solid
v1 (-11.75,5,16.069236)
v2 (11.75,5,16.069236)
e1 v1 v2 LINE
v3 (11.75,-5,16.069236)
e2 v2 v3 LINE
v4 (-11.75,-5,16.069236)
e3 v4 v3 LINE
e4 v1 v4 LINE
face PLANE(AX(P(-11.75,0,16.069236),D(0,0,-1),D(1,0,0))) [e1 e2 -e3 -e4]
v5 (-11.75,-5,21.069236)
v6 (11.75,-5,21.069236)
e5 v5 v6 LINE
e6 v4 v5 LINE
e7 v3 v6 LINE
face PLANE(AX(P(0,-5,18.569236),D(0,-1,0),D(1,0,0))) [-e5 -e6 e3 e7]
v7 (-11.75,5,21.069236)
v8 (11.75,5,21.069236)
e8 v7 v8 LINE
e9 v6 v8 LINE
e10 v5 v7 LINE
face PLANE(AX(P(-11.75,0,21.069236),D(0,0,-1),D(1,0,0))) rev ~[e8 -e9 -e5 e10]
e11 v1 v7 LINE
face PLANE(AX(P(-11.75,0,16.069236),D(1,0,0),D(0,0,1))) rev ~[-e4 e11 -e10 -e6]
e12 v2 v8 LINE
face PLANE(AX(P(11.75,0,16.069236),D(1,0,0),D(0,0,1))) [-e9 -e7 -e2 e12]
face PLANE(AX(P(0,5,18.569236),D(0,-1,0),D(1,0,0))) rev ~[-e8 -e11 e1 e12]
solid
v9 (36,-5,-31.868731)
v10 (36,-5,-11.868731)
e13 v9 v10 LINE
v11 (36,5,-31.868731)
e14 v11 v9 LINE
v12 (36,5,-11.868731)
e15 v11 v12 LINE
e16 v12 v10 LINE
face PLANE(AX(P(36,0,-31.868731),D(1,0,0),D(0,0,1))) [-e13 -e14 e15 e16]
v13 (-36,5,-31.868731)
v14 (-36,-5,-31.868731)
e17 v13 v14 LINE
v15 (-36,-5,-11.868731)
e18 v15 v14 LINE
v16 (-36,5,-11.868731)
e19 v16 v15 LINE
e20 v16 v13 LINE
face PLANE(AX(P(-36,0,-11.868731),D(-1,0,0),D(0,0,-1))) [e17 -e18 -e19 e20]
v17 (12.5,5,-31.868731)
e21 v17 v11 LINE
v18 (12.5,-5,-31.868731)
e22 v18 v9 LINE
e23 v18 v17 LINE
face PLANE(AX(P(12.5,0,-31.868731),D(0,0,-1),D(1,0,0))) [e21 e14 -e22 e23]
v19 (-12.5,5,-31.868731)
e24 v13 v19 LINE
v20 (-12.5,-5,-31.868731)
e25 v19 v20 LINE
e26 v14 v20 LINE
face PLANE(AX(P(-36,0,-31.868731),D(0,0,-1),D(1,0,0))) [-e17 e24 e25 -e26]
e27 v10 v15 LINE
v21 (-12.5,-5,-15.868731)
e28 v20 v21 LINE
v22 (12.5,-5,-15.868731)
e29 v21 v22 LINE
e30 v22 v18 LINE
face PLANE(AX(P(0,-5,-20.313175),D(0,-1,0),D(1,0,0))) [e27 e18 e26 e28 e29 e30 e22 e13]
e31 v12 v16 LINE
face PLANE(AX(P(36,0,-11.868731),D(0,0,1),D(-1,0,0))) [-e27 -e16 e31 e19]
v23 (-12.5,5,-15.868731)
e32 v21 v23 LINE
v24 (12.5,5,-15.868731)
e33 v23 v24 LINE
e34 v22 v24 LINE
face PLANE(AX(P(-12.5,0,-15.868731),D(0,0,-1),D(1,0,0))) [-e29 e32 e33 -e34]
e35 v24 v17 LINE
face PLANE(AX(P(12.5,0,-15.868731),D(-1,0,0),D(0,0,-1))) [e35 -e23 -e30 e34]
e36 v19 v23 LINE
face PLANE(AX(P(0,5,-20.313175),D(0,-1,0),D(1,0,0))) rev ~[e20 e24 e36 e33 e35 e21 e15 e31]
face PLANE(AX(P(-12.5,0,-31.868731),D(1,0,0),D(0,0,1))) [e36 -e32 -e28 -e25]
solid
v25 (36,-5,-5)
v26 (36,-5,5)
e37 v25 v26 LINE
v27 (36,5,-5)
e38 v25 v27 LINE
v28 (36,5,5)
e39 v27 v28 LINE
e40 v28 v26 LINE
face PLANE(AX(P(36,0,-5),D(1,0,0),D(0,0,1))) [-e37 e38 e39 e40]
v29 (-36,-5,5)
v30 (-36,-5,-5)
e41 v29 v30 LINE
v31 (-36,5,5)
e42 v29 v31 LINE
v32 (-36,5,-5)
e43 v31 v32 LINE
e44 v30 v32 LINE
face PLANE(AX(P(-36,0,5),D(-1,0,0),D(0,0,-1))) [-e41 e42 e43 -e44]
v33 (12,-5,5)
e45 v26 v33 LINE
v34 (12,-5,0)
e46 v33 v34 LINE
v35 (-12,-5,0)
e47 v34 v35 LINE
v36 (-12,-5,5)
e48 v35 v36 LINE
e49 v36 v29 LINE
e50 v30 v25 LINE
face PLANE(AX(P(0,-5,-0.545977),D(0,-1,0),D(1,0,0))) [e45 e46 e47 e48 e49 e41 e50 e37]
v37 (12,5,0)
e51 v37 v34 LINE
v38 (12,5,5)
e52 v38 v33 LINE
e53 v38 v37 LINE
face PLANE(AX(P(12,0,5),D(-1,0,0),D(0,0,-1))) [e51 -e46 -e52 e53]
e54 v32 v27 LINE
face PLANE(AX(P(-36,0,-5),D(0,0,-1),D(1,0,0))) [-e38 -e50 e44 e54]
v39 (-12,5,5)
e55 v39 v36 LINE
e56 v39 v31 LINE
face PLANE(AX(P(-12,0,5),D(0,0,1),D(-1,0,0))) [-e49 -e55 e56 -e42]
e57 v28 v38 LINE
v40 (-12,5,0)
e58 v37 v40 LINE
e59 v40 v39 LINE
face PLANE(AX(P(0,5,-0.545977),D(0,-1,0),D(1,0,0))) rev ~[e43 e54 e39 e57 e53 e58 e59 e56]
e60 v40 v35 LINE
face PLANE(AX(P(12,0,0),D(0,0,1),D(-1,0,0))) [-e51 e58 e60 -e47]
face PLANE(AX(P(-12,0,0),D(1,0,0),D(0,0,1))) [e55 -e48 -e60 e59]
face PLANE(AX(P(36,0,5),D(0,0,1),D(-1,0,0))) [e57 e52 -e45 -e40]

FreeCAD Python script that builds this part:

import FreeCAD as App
import Part
import Sketcher
from FreeCAD import Vector

doc = App.newDocument("Part")
params = doc.addObject("Spreadsheet::Sheet", "Params")
for row, (alias, value) in enumerate([
    ("sketch1_width", "24 mm"),
    ("sketch1_height", "10 mm"),
    ("pad1_length", "10 mm"),
    ("sketch2_height", "5 mm"),
    ("sketch2_width", "23.5 mm"),
    ("pad2_length", "10 mm"),
    ("sketch3_width", "72 mm"),
    ("sketch3_width2", "25 mm"),
    ("sketch3_height", "20 mm"),
    ("sketch3_height2", "16 mm"),
    ("pad3_length", "10 mm"),
], start=1):
    params.set(f"A{row}", alias)
    params.set(f"B{row}", "=" + value)
    params.setAlias(f"B{row}", alias)

body = doc.addObject("PartDesign::Body", "Body")

sketch1 = body.newObject("Sketcher::SketchObject", "Sketch")
sketch1.AttachmentSupport = (doc.getObject("XZ_Plane"), [""])
sketch1.MapMode = "FlatFace"
sketch1.addGeometry([
    Part.LineSegment(Vector(36, -5, 0), Vector(36, 5, 0)),
    Part.LineSegment(Vector(36, 5, 0), Vector(12, 5, 0)),
    Part.LineSegment(Vector(12, 5, 0), Vector(12, 0, 0)),
    Part.LineSegment(Vector(12, 0, 0), Vector(-12, 0, 0)),
    Part.LineSegment(Vector(-12, 0, 0), Vector(-12, 5, 0)),
    Part.LineSegment(Vector(-12, 5, 0), Vector(-36, 5, 0)),
    Part.LineSegment(Vector(-36, 5, 0), Vector(-36, -5, 0)),
    Part.LineSegment(Vector(-36, -5, 0), Vector(36, -5, 0)),
], False)
sketch1.addConstraint([
    Sketcher.Constraint("Coincident", 0, 2, 1, 1),
    Sketcher.Constraint("Coincident", 1, 2, 2, 1),
    Sketcher.Constraint("Coincident", 2, 2, 3, 1),
    Sketcher.Constraint("Coincident", 3, 2, 4, 1),
    Sketcher.Constraint("Coincident", 4, 2, 5, 1),
    Sketcher.Constraint("Coincident", 5, 2, 6, 1),
    Sketcher.Constraint("Coincident", 6, 2, 7, 1),
    Sketcher.Constraint("Coincident", 7, 2, 0, 1),
    Sketcher.Constraint("Vertical", 0),
    Sketcher.Constraint("Horizontal", 1),
    Sketcher.Constraint("Vertical", 2),
    Sketcher.Constraint("Horizontal", 3),
    Sketcher.Constraint("Vertical", 4),
    Sketcher.Constraint("Horizontal", 5),
    Sketcher.Constraint("Vertical", 6),
    Sketcher.Constraint("Horizontal", 7),
    Sketcher.Constraint("Symmetric", 2, 2, 3, 2, -1, 1),
    Sketcher.Constraint("Symmetric", 0, 2, 6, 2, -1, 1),
    Sketcher.Constraint("Horizontal", 1, 2, 4, 2),
    Sketcher.Constraint("Equal", 1, 3),
    Sketcher.Constraint("DistanceX", 1, 2, 1, 1, 24.0),
    Sketcher.Constraint("DistanceY", 0, 1, 0, 2, 10.0),
])
sketch1.setExpression("Constraints[20]", "Params.sketch1_width")
sketch1.setExpression("Constraints[21]", "Params.sketch1_height")
pad1 = body.newObject("PartDesign::Pad", "Pad")
pad1.Profile = sketch1
pad1.setExpression("Length", "Params.pad1_length")
pad1.Midplane = True
body2 = doc.addObject("PartDesign::Body", "Body001")

sketch2 = body2.newObject("Sketcher::SketchObject", "Sketch001")
sketch2.AttachmentSupport = (doc.getObject("XZ_Plane001"), [""])
sketch2.MapMode = "FlatFace"
sketch2.addGeometry([
    Part.LineSegment(Vector(-12, 21, 0), Vector(-12, 16, 0)),
    Part.LineSegment(Vector(-12, 16, 0), Vector(12, 16, 0)),
    Part.LineSegment(Vector(12, 16, 0), Vector(12, 21, 0)),
    Part.LineSegment(Vector(12, 21, 0), Vector(-12, 21, 0)),
], False)
sketch2.addConstraint([
    Sketcher.Constraint("Coincident", 0, 2, 1, 1),
    Sketcher.Constraint("Coincident", 1, 2, 2, 1),
    Sketcher.Constraint("Coincident", 2, 2, 3, 1),
    Sketcher.Constraint("Coincident", 3, 2, 0, 1),
    Sketcher.Constraint("Vertical", 0),
    Sketcher.Constraint("Horizontal", 1),
    Sketcher.Constraint("Vertical", 2),
    Sketcher.Constraint("Horizontal", 3),
    Sketcher.Constraint("DistanceY", 0, 2, 0, 1, 5.0),
    Sketcher.Constraint("DistanceX", 1, 1, 1, 2, 23.5),
    Sketcher.Constraint("DistanceX", 0, 2, -1, 1, 11.75),
    Sketcher.Constraint("DistanceY", -1, 1, 0, 2, 16.069236),
])
sketch2.setExpression("Constraints[8]", "Params.sketch2_height")
sketch2.setExpression("Constraints[9]", "Params.sketch2_width")
pad2 = body2.newObject("PartDesign::Pad", "Pad001")
pad2.Profile = sketch2
pad2.setExpression("Length", "Params.pad2_length")
pad2.Midplane = True
body3 = doc.addObject("PartDesign::Body", "Body002")

sketch3 = body3.newObject("Sketcher::SketchObject", "Sketch002")
sketch3.AttachmentSupport = (doc.getObject("XZ_Plane002"), [""])
sketch3.MapMode = "FlatFace"
sketch3.addGeometry([
    Part.LineSegment(Vector(12, -32, 0), Vector(36, -32, 0)),
    Part.LineSegment(Vector(36, -32, 0), Vector(36, -12, 0)),
    Part.LineSegment(Vector(36, -12, 0), Vector(-36, -12, 0)),
    Part.LineSegment(Vector(-36, -12, 0), Vector(-36, -32, 0)),
    Part.LineSegment(Vector(-36, -32, 0), Vector(-12, -32, 0)),
    Part.LineSegment(Vector(-12, -32, 0), Vector(-12, -16, 0)),
    Part.LineSegment(Vector(-12, -16, 0), Vector(12, -16, 0)),
    Part.LineSegment(Vector(12, -16, 0), Vector(12, -32, 0)),
], False)
sketch3.addConstraint([
    Sketcher.Constraint("Coincident", 0, 2, 1, 1),
    Sketcher.Constraint("Coincident", 1, 2, 2, 1),
    Sketcher.Constraint("Coincident", 2, 2, 3, 1),
    Sketcher.Constraint("Coincident", 3, 2, 4, 1),
    Sketcher.Constraint("Coincident", 4, 2, 5, 1),
    Sketcher.Constraint("Coincident", 5, 2, 6, 1),
    Sketcher.Constraint("Coincident", 6, 2, 7, 1),
    Sketcher.Constraint("Coincident", 7, 2, 0, 1),
    Sketcher.Constraint("Horizontal", 0),
    Sketcher.Constraint("Vertical", 1),
    Sketcher.Constraint("Horizontal", 2),
    Sketcher.Constraint("Vertical", 3),
    Sketcher.Constraint("Horizontal", 4),
    Sketcher.Constraint("Vertical", 5),
    Sketcher.Constraint("Horizontal", 6),
    Sketcher.Constraint("Vertical", 7),
    Sketcher.Constraint("Symmetric", 0, 2, 3, 2, -2),
    Sketcher.Constraint("Equal", 0, 4),
    Sketcher.Constraint("DistanceX", 2, 2, 2, 1, 72.0),
    Sketcher.Constraint("DistanceX", 6, 1, 6, 2, 25.0),
    Sketcher.Constraint("DistanceY", 1, 1, 1, 2, 20.0),
    Sketcher.Constraint("DistanceY", 5, 1, 5, 2, 16.0),
    Sketcher.Constraint("DistanceY", 0, 2, -1, 1, 31.868731),
])
sketch3.setExpression("Constraints[18]", "Params.sketch3_width")
sketch3.setExpression("Constraints[19]", "Params.sketch3_width2")
sketch3.setExpression("Constraints[20]", "Params.sketch3_height")
sketch3.setExpression("Constraints[21]", "Params.sketch3_height2")
pad3 = body3.newObject("PartDesign::Pad", "Pad002")
pad3.Profile = sketch3
pad3.setExpression("Length", "Params.pad3_length")
pad3.Midplane = True

doc.recompute()
